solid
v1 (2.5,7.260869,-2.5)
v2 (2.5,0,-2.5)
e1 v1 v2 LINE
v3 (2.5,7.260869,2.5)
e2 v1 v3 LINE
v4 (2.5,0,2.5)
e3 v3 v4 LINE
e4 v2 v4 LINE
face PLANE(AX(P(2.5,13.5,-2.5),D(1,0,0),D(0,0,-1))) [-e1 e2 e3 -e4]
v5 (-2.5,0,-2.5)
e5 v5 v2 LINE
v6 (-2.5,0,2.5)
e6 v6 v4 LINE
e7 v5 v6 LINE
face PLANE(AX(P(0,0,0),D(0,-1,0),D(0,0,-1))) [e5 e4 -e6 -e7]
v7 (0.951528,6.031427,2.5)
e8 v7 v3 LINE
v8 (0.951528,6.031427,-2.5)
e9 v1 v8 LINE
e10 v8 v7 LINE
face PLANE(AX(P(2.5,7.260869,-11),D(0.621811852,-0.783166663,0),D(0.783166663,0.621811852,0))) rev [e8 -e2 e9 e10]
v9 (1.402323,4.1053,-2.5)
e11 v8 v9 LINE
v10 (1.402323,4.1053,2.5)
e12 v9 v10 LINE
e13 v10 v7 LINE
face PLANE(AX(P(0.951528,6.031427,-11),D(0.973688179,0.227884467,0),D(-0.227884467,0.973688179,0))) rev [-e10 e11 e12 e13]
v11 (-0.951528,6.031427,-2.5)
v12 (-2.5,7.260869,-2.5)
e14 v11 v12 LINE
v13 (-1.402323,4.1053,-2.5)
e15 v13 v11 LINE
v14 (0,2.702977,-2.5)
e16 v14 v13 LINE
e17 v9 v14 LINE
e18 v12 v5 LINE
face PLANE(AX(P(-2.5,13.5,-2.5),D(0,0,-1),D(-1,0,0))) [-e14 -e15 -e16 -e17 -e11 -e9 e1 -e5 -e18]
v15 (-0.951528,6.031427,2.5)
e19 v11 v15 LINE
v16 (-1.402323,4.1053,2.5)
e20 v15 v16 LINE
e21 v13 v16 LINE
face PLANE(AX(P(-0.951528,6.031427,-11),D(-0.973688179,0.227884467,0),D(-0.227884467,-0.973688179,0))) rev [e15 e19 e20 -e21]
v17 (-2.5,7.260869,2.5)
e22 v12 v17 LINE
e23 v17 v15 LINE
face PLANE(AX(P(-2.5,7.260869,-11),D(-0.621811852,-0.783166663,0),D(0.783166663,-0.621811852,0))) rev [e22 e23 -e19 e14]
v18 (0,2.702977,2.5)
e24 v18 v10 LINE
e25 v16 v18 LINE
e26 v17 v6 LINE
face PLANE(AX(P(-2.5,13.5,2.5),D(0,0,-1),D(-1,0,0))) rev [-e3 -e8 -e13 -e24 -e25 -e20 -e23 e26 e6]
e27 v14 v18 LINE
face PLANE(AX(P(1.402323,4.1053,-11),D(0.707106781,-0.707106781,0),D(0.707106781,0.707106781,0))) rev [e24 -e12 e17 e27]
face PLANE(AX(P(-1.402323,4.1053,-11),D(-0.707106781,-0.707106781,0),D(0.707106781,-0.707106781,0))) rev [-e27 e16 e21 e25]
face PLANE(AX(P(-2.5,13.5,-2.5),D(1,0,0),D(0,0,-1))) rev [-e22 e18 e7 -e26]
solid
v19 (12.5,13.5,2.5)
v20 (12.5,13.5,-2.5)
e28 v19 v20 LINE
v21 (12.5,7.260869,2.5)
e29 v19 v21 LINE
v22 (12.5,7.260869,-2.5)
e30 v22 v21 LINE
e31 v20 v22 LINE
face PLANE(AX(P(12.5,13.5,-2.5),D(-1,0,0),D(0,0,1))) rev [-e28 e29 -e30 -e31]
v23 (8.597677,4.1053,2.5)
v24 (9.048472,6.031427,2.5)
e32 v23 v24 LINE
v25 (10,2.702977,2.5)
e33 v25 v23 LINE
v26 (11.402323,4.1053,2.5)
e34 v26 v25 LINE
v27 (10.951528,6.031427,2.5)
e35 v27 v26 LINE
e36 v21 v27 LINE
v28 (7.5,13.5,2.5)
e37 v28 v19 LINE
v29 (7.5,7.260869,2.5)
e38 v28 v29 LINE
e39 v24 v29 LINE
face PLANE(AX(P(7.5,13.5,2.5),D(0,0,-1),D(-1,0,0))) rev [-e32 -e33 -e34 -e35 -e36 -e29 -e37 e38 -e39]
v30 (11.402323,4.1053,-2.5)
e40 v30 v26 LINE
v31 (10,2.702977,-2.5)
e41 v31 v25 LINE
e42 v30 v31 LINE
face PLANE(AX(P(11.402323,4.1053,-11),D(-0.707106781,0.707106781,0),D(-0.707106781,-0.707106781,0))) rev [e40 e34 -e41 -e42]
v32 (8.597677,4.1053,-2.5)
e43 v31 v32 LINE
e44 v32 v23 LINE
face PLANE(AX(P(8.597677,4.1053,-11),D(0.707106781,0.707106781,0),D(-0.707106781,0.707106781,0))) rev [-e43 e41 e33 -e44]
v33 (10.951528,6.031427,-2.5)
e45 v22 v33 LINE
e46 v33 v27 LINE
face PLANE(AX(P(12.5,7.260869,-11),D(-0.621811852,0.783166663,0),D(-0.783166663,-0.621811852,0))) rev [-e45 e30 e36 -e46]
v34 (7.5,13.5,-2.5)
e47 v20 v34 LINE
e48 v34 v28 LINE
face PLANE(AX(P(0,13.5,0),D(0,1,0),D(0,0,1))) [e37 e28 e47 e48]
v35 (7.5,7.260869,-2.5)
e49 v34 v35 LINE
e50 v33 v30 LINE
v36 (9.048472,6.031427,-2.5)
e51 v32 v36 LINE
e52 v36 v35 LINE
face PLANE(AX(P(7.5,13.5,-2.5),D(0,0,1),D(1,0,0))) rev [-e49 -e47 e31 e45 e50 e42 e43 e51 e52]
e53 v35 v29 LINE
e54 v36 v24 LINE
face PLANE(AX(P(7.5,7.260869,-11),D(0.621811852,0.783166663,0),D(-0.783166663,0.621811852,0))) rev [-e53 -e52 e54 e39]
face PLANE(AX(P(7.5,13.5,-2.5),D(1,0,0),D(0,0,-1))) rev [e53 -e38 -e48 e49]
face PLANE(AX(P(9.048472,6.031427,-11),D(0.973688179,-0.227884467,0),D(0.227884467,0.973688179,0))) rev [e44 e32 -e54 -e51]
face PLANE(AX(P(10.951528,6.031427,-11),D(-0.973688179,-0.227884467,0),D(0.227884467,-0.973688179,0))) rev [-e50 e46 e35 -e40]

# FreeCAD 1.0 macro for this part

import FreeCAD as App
import Part
import Sketcher
from FreeCAD import Vector
Q = App.Units.Quantity


def add_polygon(sketch, points):
    """Adds a closed chain of lines whose ends are joined by coincident constraints."""
    first, n = sketch.GeometryCount, len(points)
    for a, b in zip(points, points[1:] + points[:1]):
        sketch.addGeometry(Part.LineSegment(App.Vector(*a, 0), App.Vector(*b, 0)), False)
    for i in range(n):
        sketch.addConstraint(Sketcher.Constraint("Coincident", first + i, 2, first + (i + 1) % n, 1))

doc = App.newDocument("Part")
body = doc.addObject("PartDesign::Body", "Body")

# Sketch on XZ plane
sketch1 = body.newObject("Sketcher::SketchObject", "Sketch")
sketch1.AttachmentSupport = (doc.getObject("XZ_Plane"), [""])
sketch1.MapMode = "FlatFace"
add_polygon(sketch1, [(-2, -2), (-2, 2), (2, 2), (2, -2)])  # lines 0-3
sketch1.addConstraint([
    Sketcher.Constraint("Vertical", 0),
    Sketcher.Constraint("Horizontal", 1),
    Sketcher.Constraint("Vertical", 2),
    Sketcher.Constraint("Horizontal", 3),
    Sketcher.Constraint("Symmetric", 0, 2, 2, 2, -1, 1),
    Sketcher.Constraint("Equal", 3, 0),
    Sketcher.Constraint("DistanceX", 1, 1, 1, 2, Q("5 mm")),
])
pad1 = body.newObject("PartDesign::Pad", "Pad")
pad1.Profile = sketch1
pad1.Length = 13.5
pad1.Reversed = True
body2 = doc.addObject("PartDesign::Body", "Body001")

# Sketch on XZ plane
sketch2 = body2.newObject("Sketcher::SketchObject", "Sketch001")
sketch2.AttachmentSupport = (doc.getObject("XZ_Plane001"), [""])
sketch2.MapMode = "FlatFace"
add_polygon(sketch2, [(8, -2), (8, 2), (12, 2), (12, -2)])  # lines 0-3
sketch2.addConstraint([
    Sketcher.Constraint("Vertical", 0),
    Sketcher.Constraint("Horizontal", 1),
    Sketcher.Constraint("Vertical", 2),
    Sketcher.Constraint("Horizontal", 3),
    Sketcher.Constraint("Equal", 3, 0),
    Sketcher.Constraint("DistanceX", 1, 1, 1, 2, Q("5 mm")),
    Sketcher.Constraint("DistanceX", -1, 1, 0, 2, Q("7.5 mm")),
    Sketcher.Constraint("DistanceY", -1, 1, 0, 2, Q("2.5 mm")),
])
pad2 = body2.newObject("PartDesign::Pad", "Pad001")
pad2.Profile = sketch2
pad2.Length = 13.5
pad2.Reversed = True
body3 = doc.addObject("PartDesign::Body", "Body002")
body3.AllowCompound = True

# Sketch on XY plane
sketch3 = body3.newObject("Sketcher::SketchObject", "Sketch002")
sketch3.AttachmentSupport = (doc.getObject("XY_Plane002"), [""])
sketch3.MapMode = "FlatFace"
sketch3.AttachmentOffset = App.Placement(Vector(0, 0, 2.5), App.Rotation())
add_polygon(sketch3, [(-2.5, 7.3), (-1, 6), (-1.4, 4.1), (0, 2.7), (1.4, 4.1), (1, 6), (2.5, 7.3), (2.5, 13.5), (-2.5, 13.5)])  # lines 0-8
add_polygon(sketch3, [(9, 6), (7.5, 7.3), (7.5, 0), (12.5, 0), (12.5, 7.3), (11, 6), (11.4, 4.1), (10, 2.7), (8.6, 4.1)])  # lines 9-17
sketch3.addConstraint([
    Sketcher.Constraint("Vertical", 6),
    Sketcher.Constraint("Horizontal", 7),
    Sketcher.Constraint("Vertical", 8),
    Sketcher.Constraint("Vertical", 10),
    Sketcher.Constraint("Horizontal", 11),
    Sketcher.Constraint("Vertical", 12),
    Sketcher.Constraint("Symmetric", 1, 2, 3, 2, -2),
    Sketcher.Constraint("Symmetric", 0, 2, 4, 2, -2),
    Sketcher.Constraint("Symmetric", 5, 2, 8, 2, -2),
    Sketcher.Constraint("PointOnObject", 2, 2, -2),
    Sketcher.Constraint("PointOnObject", 10, 2, -1),
    Sketcher.Constraint("Perpendicular", 2, 3),
    Sketcher.Constraint("Parallel", 0, 9),
    Sketcher.Constraint("Parallel", 5, 13),
    Sketcher.Constraint("Parallel", 4, 14),
    Sketcher.Constraint("Parallel", 3, 15),
    Sketcher.Constraint("Perpendicular", 15, 16),
    Sketcher.Constraint("Parallel", 1, 17),
    Sketcher.Constraint("Horizontal", 8, 2, 9, 2),
    Sketcher.Constraint("Horizontal", 9, 2, 12, 2),
    Sketcher.Constraint("Horizontal", 4, 2, 13, 2),
    Sketcher.Constraint("Horizontal", 3, 2, 14, 2),
    Sketcher.Constraint("Horizontal", 2, 2, 15, 2),
    Sketcher.Constraint("Horizontal", 14, 2, 16, 2),
    Sketcher.Constraint("Horizontal", 13, 2, 17, 2),
    Sketcher.Constraint("DistanceX", 7, 2, 7, 1, Q("5 mm")),
    Sketcher.Constraint("DistanceX", -1, 1, 15, 2, Q("10 mm")),
    Sketcher.Constraint("DistanceY", -1, 1, 6, 2, Q("13.5 mm")),
    Sketcher.Constraint("DistanceY", 6, 1, 6, 2, Q("6.239131 mm")),
    Sketcher.Constraint("DistanceY", -1, 1, 1, 2, Q("4.1053 mm")),
    Sketcher.Constraint("DistanceY", 2, 2, 0, 2, Q("3.32845 mm")),
    Sketcher.Constraint("DistanceX", 0, 2, 3, 2, Q("2.353851 mm")),
    Sketcher.Constraint("Distance", 0, Q("1.977194 mm")),
])
pad3 = body3.newObject("PartDesign::Pad", "Pad002")
pad3.Profile = sketch3
pad3.Length = 13.5
pad3.Reversed = True
doc.recompute()

body4 = doc.addObject("PartDesign::Body", "Body003")
body4.BaseFeature = body3
boolean = body.newObject("PartDesign::Boolean", "Boolean")
boolean.Type = "Cut"
boolean.addObjects([body4])
doc.recompute()

boolean2 = body2.newObject("PartDesign::Boolean", "Boolean001")
boolean2.Type = "Cut"
boolean2.addObjects([body3])

doc.recompute()
